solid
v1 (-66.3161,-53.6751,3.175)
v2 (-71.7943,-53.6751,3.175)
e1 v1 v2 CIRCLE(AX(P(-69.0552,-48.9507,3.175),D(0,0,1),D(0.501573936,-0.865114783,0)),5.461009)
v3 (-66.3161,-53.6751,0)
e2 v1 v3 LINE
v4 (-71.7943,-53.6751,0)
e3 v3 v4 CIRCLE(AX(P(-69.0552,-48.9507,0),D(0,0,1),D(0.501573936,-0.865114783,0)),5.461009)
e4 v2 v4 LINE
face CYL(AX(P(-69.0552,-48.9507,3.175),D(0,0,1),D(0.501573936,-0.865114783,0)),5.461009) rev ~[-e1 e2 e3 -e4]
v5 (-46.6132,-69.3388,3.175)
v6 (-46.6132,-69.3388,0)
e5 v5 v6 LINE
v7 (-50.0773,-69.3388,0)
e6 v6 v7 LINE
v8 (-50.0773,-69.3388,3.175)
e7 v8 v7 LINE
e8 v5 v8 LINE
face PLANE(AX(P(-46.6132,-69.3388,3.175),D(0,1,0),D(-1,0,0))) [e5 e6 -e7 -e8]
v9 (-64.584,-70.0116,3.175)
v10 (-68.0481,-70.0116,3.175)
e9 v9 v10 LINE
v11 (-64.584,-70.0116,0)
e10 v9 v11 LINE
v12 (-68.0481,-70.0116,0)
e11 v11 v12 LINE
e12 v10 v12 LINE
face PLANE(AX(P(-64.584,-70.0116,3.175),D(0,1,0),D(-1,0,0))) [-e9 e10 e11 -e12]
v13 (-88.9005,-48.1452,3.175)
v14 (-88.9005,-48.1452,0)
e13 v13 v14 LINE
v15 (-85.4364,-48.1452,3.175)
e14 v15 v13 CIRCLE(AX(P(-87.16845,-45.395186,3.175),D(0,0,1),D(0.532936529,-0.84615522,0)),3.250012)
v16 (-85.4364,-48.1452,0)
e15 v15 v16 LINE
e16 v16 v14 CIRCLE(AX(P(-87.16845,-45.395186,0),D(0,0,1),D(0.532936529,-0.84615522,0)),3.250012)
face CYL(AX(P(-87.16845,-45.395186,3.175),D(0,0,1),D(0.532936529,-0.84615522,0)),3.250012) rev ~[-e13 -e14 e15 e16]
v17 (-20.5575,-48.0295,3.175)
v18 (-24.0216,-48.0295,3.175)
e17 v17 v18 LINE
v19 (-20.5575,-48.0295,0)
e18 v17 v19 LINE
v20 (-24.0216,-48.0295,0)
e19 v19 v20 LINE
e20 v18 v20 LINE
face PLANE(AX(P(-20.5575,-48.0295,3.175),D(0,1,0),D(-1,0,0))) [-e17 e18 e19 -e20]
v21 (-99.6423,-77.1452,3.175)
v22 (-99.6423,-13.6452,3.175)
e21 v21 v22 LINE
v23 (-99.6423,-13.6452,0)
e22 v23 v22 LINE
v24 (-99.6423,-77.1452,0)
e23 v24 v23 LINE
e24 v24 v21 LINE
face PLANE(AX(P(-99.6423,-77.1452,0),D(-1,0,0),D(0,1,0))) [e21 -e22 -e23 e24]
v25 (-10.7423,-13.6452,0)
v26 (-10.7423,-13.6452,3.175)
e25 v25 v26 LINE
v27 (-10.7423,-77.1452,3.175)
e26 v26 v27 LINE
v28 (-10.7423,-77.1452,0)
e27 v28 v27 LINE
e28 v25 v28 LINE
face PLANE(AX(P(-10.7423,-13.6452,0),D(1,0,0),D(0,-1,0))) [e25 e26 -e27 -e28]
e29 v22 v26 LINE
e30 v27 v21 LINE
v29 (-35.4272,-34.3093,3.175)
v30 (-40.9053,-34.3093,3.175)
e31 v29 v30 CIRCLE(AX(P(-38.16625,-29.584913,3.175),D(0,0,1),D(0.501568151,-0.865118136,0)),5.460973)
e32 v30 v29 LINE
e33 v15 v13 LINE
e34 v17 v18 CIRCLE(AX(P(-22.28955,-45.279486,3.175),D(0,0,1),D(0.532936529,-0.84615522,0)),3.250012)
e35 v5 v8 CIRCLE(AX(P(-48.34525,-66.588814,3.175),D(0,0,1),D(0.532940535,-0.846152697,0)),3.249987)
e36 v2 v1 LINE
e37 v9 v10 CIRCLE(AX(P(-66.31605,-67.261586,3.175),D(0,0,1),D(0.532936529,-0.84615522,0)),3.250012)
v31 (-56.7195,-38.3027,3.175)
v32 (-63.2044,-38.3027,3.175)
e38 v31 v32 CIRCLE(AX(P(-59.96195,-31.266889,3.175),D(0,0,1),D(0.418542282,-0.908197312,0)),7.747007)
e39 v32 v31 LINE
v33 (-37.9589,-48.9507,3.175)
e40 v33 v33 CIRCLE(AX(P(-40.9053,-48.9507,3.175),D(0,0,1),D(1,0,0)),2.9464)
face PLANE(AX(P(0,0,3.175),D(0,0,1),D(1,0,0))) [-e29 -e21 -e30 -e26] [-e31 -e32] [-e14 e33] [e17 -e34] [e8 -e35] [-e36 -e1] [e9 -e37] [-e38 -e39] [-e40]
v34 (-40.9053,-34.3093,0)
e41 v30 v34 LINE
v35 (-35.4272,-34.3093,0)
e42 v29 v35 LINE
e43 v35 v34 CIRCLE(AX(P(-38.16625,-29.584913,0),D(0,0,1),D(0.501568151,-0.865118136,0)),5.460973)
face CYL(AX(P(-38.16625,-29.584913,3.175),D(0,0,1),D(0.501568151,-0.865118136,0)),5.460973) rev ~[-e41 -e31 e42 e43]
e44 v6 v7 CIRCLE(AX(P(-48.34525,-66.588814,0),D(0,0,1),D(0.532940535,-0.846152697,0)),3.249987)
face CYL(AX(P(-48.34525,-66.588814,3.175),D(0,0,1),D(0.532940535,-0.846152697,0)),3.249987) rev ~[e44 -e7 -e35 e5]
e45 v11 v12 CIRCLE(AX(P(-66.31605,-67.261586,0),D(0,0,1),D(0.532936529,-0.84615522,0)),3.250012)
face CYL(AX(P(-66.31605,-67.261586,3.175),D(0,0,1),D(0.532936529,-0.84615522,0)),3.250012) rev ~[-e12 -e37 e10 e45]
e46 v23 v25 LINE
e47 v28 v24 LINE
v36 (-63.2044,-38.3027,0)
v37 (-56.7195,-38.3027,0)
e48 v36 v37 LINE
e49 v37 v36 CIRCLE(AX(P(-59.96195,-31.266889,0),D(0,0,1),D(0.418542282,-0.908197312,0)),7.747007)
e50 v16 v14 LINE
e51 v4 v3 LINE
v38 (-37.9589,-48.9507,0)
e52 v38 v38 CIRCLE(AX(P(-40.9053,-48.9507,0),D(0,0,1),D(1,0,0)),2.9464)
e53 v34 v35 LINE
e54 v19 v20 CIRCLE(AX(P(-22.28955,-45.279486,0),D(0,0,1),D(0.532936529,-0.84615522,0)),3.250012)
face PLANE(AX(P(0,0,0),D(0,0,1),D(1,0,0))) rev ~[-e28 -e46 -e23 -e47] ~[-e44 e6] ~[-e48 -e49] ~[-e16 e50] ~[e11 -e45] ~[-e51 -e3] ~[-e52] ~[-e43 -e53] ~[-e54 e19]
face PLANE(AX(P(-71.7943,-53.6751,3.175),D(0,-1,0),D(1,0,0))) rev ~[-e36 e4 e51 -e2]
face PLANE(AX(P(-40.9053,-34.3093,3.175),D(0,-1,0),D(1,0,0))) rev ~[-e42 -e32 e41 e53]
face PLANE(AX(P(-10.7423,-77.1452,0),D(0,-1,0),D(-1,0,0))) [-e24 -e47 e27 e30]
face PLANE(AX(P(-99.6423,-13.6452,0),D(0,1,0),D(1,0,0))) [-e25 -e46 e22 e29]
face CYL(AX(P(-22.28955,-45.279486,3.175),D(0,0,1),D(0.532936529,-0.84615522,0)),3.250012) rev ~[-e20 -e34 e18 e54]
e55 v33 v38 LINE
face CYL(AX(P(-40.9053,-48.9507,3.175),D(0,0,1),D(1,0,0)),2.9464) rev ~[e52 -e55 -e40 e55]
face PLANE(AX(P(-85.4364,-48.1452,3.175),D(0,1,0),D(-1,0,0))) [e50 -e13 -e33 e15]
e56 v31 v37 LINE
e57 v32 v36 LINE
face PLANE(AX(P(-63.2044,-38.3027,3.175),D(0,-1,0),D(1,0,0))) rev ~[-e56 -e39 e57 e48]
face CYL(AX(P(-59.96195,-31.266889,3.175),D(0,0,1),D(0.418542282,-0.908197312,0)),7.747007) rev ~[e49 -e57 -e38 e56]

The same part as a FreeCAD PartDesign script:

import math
import FreeCAD as App
import Part
import Sketcher
from FreeCAD import Vector
Q = App.Units.Quantity

doc = App.newDocument("Part")
body = doc.addObject("PartDesign::Body", "Body")

sketch1 = doc.addObject("Sketcher::SketchObject", "Sketch")
body.addObject(sketch1)
sketch1.AttachmentSupport = (doc.XY_Plane, [""])
sketch1.MapMode = "FlatFace"
sketch1.addGeometry([
    Part.LineSegment(Vector(-10.7423, -13.6452, 0), Vector(-99.6423, -13.6452, 0)),
    Part.LineSegment(Vector(-99.6423, -13.6452, 0), Vector(-99.6423, -77.1452, 0)),
    Part.LineSegment(Vector(-99.6423, -77.1452, 0), Vector(-10.7423, -77.1452, 0)),
    Part.LineSegment(Vector(-10.7423, -77.1452, 0), Vector(-10.7423, -13.6452, 0)),
], False)
sketch1.addConstraint([
    Sketcher.Constraint("Coincident", 0, 2, 1, 1),
    Sketcher.Constraint("Coincident", 1, 2, 2, 1),
    Sketcher.Constraint("Coincident", 2, 2, 3, 1),
    Sketcher.Constraint("Coincident", 3, 2, 0, 1),
    Sketcher.Constraint("Horizontal", 0),
    Sketcher.Constraint("Vertical", 1),
    Sketcher.Constraint("Horizontal", 2),
    Sketcher.Constraint("Vertical", 3),
    Sketcher.Constraint("DistanceX", 0, 2, 0, 1, Q("3.5 in")),
    Sketcher.Constraint("DistanceY", 1, 2, 1, 1, Q("2.5 in")),
    Sketcher.Constraint("DistanceX", 0, 2, -1, 1, 99.6423),
    Sketcher.Constraint("DistanceY", 0, 2, -1, 1, 13.6452),
])
pad1 = doc.addObject("PartDesign::Pad", "Pad")
body.addObject(pad1)
pad1.Profile = sketch1
pad1.Length = Q("0.125 in")

sketch2 = doc.addObject("Sketcher::SketchObject", "Sketch001")
body.addObject(sketch2)
sketch2.AttachmentSupport = (doc.XY_Plane, [""])
sketch2.MapMode = "FlatFace"
sketch2.AttachmentOffset = App.Placement(Vector(0, 0, 0.125 * 25.4), App.Rotation())
sketch2.addGeometry([
    Part.LineSegment(Vector(-63.2044, -38.3027, 0), Vector(-56.7195, -38.3027, 0)),
    Part.ArcOfCircle(Part.Circle(Vector(-59.962, -31.2669, 0), Vector(0, 0, 1), 7.747018), math.radians(-65.25704), math.radians(245.257712)),
    Part.LineSegment(Vector(-71.7943, -53.6751, 0), Vector(-66.3161, -53.6751, 0)),
    Part.ArcOfCircle(Part.Circle(Vector(-69.0552, -48.9507, 0), Vector(0, 0, 1), 5.461009), math.radians(-59.895815), math.radians(239.895815)),
    Part.Circle(Vector(-40.9053, -48.9507, 0), Vector(0, 0, 1), 2.9464),
    Part.LineSegment(Vector(-40.9053, -34.3093, 0), Vector(-35.4272, -34.3093, 0)),
    Part.ArcOfCircle(Part.Circle(Vector(-38.1662, -29.5849, 0), Vector(0, 0, 1), 5.460959), math.radians(-59.896722), math.radians(239.895815)),
    Part.LineSegment(Vector(-88.9005, -48.1452, 0), Vector(-85.4364, -48.1452, 0)),
    Part.ArcOfCircle(Part.Circle(Vector(-87.1685, -45.3952, 0), Vector(0, 0, 1), 3.250026), math.radians(-57.795039), math.radians(237.79653)),
    Part.LineSegment(Vector(-68.0481, -70.0116, 0), Vector(-64.584, -70.0116, 0)),
    Part.ArcOfCircle(Part.Circle(Vector(-66.3161, -67.2616, 0), Vector(0, 0, 1), 3.250026), math.radians(-57.795039), math.radians(237.79653)),
    Part.LineSegment(Vector(-50.0773, -69.3388, 0), Vector(-46.6132, -69.3388, 0)),
    Part.ArcOfCircle(Part.Circle(Vector(-48.3452, -66.5888, 0), Vector(0, 0, 1), 3.249973), math.radians(-57.79653), math.radians(237.795039)),
    Part.LineSegment(Vector(-24.0216, -48.0295, 0), Vector(-20.5575, -48.0295, 0)),
    Part.ArcOfCircle(Part.Circle(Vector(-22.2896, -45.2795, 0), Vector(0, 0, 1), 3.250026), math.radians(-57.795039), math.radians(237.79653)),
], False)
sketch2.addConstraint([
    Sketcher.Constraint("Coincident", 0, 1, 1, 2),
    Sketcher.Constraint("Coincident", 1, 1, 0, 2),
    Sketcher.Constraint("Coincident", 2, 1, 3, 2),
    Sketcher.Constraint("Coincident", 3, 1, 2, 2),
    Sketcher.Constraint("Coincident", 5, 1, 6, 2),
    Sketcher.Constraint("Coincident", 6, 1, 5, 2),
    Sketcher.Constraint("Coincident", 7, 1, 8, 2),
    Sketcher.Constraint("Coincident", 8, 1, 7, 2),
    Sketcher.Constraint("Coincident", 9, 1, 10, 2),
    Sketcher.Constraint("Coincident", 10, 1, 9, 2),
    Sketcher.Constraint("Coincident", 11, 1, 12, 2),
    Sketcher.Constraint("Coincident", 12, 1, 11, 2),
    Sketcher.Constraint("Coincident", 13, 1, 14, 2),
    Sketcher.Constraint("Coincident", 14, 1, 13, 2),
    Sketcher.Constraint("Horizontal", 0),
    Sketcher.Constraint("Horizontal", 2),
    Sketcher.Constraint("Horizontal", 5),
    Sketcher.Constraint("Horizontal", 7),
    Sketcher.Constraint("Horizontal", 9),
    Sketcher.Constraint("Horizontal", 11),
    Sketcher.Constraint("Horizontal", 13),
    Sketcher.Constraint("Equal", 3, 6),
    Sketcher.Constraint("Equal", 8, 10),
    Sketcher.Constraint("Equal", 10, 12),
    Sketcher.Constraint("Equal", 12, 14),
    Sketcher.Constraint("Horizontal", 3, 3, 4, 3),
    Sketcher.Constraint("Vertical", 10, 3, 3, 1),
    Sketcher.Constraint("Vertical", 4, 3, 5, 1),
    Sketcher.Constraint("Equal", 2, 5),
    Sketcher.Constraint("Equal", 7, 9),
    Sketcher.Constraint("Equal", 9, 11),
    Sketcher.Constraint("Equal", 11, 13),
    Sketcher.Constraint("Diameter", 4, Q("0.232 in")),
    Sketcher.Constraint("Radius", 1, Q("0.305 in")),
    Sketcher.Constraint("Radius", 3, Q("0.215 in")),
    Sketcher.Constraint("Radius", 8, 3.25),
    Sketcher.Constraint("DistanceY", 0, 1, 1, 3, Q("0.277 in")),
    Sketcher.Constraint("DistanceY", 2, 1, 3, 3, Q("0.186 in")),
    Sketcher.Constraint("DistanceY", 7, 1, 8, 3, 2.75),
    Sketcher.Constraint("DistanceX", 3, 3, 1, 3, Q("0.358 in")),
    Sketcher.Constraint("DistanceY", 12, 3, 1, 3, Q("1.3906299 in")),
    Sketcher.Constraint("DistanceX", 1, 3, -1, 1, Q("2.3607 in")),
    Sketcher.Constraint("DistanceY", 3, 3, -1, 1, Q("1.9272 in")),
    Sketcher.Constraint("DistanceX", 6, 3, -1, 1, Q("1.5026 in")),
    Sketcher.Constraint("DistanceY", 10, 3, -1, 1, Q("2.6481 in")),
    Sketcher.Constraint("DistanceY", 12, 3, -1, 1, Q("2.6216 in")),
    Sketcher.Constraint("DistanceX", 12, 3, 4, 3, Q("0.2929 in")),
    Sketcher.Constraint("DistanceX", 4, 3, 14, 3, Q("0.7329 in")),
    Sketcher.Constraint("DistanceY", 14, 3, 6, 3, Q("0.6179 in")),
    Sketcher.Constraint("DistanceX", 7, 1, 3, 3, Q("0.7813 in")),
    Sketcher.Constraint("DistanceY", 7, 1, 0, 1, Q("0.3875 in")),
    Sketcher.Constraint("DistanceY", 6, 3, -1, 1, 29.585),
])
pocket1 = doc.addObject("PartDesign::Pocket", "Pocket")
body.addObject(pocket1)
pocket1.Profile = sketch2
pocket1.Length = Q("0.25 in")

doc.recompute()
